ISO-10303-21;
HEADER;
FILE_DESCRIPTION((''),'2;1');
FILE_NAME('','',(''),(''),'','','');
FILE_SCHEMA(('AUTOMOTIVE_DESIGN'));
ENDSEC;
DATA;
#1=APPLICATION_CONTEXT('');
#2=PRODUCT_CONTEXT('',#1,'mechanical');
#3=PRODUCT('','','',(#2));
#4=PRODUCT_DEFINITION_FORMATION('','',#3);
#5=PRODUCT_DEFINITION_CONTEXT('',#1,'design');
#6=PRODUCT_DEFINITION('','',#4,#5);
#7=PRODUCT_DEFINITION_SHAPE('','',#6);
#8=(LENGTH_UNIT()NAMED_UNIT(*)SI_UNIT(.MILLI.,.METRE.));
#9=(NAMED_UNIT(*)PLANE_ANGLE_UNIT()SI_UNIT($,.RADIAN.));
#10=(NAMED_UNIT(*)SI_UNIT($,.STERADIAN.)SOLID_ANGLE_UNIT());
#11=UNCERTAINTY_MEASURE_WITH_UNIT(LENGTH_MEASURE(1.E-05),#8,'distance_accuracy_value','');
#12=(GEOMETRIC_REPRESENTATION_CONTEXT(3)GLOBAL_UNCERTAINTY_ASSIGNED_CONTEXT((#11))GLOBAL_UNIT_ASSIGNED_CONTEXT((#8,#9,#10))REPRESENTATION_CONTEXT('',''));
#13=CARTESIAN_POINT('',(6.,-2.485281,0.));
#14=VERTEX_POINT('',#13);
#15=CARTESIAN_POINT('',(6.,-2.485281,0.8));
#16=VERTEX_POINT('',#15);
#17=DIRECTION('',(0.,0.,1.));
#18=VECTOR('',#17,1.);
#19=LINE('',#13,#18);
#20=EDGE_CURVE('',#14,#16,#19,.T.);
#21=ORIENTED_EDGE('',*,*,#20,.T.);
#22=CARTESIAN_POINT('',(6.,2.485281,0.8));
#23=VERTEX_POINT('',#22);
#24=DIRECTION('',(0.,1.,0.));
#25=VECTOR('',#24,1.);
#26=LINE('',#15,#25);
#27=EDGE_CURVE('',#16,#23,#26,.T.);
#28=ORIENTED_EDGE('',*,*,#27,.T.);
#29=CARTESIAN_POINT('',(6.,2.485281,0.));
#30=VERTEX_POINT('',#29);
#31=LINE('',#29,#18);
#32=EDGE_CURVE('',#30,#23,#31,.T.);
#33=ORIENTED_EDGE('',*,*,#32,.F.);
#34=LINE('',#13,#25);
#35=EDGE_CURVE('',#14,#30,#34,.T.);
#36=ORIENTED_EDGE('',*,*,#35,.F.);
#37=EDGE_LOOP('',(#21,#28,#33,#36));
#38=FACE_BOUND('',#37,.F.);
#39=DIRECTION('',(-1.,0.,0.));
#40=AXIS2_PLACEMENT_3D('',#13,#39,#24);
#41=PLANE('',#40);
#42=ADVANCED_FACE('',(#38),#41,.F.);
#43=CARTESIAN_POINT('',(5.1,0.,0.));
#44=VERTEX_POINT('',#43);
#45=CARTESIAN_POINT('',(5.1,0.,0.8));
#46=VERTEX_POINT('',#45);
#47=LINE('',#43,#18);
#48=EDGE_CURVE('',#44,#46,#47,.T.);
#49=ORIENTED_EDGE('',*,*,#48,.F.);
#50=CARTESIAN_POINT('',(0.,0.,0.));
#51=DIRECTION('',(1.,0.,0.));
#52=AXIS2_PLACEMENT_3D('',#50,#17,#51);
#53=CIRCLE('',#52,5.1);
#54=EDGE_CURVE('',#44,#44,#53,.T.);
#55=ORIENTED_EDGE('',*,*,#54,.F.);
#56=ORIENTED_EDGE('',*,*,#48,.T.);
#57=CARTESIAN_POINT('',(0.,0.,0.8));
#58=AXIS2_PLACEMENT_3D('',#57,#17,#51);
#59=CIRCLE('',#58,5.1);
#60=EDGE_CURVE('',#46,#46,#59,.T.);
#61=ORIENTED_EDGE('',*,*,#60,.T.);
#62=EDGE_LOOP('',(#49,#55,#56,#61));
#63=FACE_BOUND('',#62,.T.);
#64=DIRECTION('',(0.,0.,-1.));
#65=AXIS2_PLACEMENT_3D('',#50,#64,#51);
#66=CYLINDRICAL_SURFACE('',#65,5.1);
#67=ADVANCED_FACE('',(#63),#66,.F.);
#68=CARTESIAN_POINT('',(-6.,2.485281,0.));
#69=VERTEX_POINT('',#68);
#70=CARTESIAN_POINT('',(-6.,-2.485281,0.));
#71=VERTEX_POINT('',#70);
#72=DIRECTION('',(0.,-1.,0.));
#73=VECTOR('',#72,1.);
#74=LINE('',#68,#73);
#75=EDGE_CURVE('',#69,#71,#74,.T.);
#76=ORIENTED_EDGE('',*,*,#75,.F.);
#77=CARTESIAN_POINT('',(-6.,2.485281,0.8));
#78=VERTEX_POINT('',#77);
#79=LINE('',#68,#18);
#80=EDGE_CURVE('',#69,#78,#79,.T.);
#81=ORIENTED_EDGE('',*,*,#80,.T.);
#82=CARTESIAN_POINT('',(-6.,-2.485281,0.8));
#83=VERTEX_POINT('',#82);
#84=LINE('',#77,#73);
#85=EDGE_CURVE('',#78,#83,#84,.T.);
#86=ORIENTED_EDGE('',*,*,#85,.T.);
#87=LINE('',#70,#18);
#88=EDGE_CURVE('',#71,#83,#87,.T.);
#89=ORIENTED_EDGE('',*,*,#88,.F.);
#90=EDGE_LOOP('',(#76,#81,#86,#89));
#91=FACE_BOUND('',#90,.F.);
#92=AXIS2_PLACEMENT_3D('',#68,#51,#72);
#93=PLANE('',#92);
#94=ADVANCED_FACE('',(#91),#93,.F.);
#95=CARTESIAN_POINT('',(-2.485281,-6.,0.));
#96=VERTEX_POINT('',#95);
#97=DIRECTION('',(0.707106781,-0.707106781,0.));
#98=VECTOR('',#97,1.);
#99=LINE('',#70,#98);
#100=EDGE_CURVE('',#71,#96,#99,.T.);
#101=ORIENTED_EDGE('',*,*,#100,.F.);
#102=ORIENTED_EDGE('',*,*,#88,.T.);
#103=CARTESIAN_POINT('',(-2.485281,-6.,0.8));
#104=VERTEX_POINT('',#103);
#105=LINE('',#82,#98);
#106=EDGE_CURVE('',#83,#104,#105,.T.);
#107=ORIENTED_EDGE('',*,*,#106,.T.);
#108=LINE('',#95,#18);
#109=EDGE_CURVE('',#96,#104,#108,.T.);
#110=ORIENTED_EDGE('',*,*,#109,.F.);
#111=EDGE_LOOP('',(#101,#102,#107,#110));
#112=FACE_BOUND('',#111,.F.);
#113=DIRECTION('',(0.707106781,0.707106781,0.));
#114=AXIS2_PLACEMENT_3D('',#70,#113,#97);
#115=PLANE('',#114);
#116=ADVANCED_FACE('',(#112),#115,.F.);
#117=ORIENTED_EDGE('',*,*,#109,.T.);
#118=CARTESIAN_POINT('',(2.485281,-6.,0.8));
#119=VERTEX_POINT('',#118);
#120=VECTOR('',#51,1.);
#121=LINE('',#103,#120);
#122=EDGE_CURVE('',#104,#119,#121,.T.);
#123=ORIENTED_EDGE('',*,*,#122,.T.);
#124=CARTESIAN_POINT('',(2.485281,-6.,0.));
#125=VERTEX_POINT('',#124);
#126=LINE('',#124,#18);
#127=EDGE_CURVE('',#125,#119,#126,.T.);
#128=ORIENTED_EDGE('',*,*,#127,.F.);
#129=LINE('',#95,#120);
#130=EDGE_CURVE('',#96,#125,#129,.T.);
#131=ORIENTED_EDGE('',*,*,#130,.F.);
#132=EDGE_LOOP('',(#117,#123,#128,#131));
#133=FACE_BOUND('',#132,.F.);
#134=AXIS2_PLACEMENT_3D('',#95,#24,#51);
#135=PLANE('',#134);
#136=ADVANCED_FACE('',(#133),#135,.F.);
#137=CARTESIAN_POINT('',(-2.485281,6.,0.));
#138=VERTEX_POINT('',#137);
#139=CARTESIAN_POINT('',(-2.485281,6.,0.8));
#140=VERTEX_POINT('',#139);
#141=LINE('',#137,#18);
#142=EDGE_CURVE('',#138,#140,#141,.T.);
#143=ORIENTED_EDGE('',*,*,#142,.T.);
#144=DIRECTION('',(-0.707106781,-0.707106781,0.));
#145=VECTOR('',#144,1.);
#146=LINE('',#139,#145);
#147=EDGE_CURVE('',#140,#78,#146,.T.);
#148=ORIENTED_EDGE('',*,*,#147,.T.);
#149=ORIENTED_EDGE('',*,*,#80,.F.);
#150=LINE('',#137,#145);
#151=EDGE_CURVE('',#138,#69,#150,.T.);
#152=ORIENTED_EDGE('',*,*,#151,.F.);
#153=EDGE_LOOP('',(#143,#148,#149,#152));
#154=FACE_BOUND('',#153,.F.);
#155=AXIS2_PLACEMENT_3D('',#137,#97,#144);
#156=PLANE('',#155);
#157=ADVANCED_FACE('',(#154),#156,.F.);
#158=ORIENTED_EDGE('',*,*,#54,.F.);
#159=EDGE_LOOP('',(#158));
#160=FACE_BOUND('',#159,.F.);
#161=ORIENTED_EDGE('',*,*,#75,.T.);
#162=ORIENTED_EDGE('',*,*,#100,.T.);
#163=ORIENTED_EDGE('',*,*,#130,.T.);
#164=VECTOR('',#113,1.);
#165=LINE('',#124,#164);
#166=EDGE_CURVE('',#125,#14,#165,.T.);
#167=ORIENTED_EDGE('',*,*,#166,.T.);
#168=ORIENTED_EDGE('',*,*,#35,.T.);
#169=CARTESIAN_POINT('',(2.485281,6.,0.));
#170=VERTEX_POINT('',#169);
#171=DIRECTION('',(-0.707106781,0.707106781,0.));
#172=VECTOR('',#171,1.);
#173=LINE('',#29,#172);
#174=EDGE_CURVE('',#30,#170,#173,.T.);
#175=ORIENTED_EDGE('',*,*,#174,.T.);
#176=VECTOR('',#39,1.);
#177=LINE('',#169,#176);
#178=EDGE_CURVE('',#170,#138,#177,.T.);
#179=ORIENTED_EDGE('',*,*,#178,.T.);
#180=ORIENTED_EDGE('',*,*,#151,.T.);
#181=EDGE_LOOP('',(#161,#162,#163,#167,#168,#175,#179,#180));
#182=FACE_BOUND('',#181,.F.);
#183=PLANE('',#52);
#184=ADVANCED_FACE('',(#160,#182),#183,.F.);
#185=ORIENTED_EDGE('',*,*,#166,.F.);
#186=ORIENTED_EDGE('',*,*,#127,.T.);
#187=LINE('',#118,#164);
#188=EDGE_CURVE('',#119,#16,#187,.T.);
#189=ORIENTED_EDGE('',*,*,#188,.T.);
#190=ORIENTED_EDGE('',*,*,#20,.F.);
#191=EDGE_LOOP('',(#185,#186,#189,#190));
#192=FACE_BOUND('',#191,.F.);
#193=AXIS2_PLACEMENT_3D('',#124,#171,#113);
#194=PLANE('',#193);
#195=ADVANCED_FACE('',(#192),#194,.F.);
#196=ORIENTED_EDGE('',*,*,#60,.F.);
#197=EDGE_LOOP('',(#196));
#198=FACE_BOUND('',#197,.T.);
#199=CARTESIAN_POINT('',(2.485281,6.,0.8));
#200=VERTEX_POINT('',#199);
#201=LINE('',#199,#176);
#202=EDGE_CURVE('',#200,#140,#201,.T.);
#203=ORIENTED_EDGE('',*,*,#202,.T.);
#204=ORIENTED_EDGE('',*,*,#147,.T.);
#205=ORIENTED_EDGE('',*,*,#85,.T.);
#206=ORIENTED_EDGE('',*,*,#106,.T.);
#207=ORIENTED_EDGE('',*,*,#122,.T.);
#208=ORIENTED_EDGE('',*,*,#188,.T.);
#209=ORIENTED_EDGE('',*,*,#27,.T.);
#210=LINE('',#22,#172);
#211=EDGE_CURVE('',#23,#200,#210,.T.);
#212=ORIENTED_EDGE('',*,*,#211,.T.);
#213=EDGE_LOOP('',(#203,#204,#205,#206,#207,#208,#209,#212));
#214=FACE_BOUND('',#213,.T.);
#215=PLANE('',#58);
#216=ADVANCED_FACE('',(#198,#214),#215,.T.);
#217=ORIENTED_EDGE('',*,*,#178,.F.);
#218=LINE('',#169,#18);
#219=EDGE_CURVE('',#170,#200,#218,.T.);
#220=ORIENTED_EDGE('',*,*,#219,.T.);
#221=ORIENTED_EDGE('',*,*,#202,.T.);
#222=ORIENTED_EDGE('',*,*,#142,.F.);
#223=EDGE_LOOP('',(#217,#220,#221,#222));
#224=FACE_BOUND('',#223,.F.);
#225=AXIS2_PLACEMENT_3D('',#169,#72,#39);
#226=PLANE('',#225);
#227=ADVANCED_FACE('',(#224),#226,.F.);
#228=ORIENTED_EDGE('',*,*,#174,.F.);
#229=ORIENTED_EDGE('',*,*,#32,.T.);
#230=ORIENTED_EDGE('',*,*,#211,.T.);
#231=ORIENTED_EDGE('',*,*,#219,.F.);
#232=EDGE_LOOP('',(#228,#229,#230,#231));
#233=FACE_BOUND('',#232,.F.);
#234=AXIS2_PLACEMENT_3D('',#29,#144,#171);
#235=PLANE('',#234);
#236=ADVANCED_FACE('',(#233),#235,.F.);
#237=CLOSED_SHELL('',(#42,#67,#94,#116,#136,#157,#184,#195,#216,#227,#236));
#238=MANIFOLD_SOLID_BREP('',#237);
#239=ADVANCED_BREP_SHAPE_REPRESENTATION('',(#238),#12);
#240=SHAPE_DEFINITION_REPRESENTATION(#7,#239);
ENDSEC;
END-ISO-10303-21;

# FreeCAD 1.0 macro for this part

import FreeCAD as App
import Part
import Sketcher


def add_polygon(sketch, points):
    """Adds a closed chain of lines whose ends are joined by coincident constraints."""
    first, n = sketch.GeometryCount, len(points)
    for a, b in zip(points, points[1:] + points[:1]):
        sketch.addGeometry(Part.LineSegment(App.Vector(*a, 0), App.Vector(*b, 0)), False)
    for i in range(n):
        sketch.addConstraint(Sketcher.Constraint("Coincident", first + i, 2, first + (i + 1) % n, 1))

doc = App.newDocument("Part")
body = doc.addObject("PartDesign::Body", "Body")

# Sketch on XY plane
sketch1 = body.newObject("Sketcher::SketchObject", "Sketch")
sketch1.AttachmentSupport = (doc.getObject("XY_Plane"), [""])
sketch1.MapMode = "FlatFace"
add_polygon(sketch1, [(2.5, 6), (-2.5, 6), (-6, 2.5), (-6, -2.5), (-2.5, -6), (2.5, -6), (6, -2.5), (6, 2.5)])  # lines 0-7
sketch1.addGeometry(Part.Circle(App.Vector(0, 0, 0), App.Vector(0, 0, 1), 5.1), False)  # 8
sketch1.addConstraint([
    Sketcher.Constraint("Horizontal", 0),
    Sketcher.Constraint("Vertical", 2),
    Sketcher.Constraint("Horizontal", 4),
    Sketcher.Constraint("Vertical", 6),
    Sketcher.Constraint("Coincident", 8, 3, -1, 1),
    Sketcher.Constraint("Symmetric", 0, 2, 4, 2, -1, 1),
    Sketcher.Constraint("Symmetric", 1, 2, 5, 2, -1, 1),
    Sketcher.Constraint("Perpendicular", 1, 3),
    Sketcher.Constraint("Perpendicular", 5, 7),
    Sketcher.Constraint("Horizontal", 2, 2, 5, 2),
    Sketcher.Constraint("Horizontal", 1, 2, 6, 2),
    Sketcher.Constraint("Vertical", 0, 2, 3, 2),
    Sketcher.Constraint("Equal", 4, 2),
    Sketcher.Constraint("Diameter", 8, 10.2),
    Sketcher.Constraint("DistanceY", -1, 1, 0, 2, 6.0),
    Sketcher.Constraint("DistanceX", 0, 2, 0, 1, 4.970562),
])
pad1 = body.newObject("PartDesign::Pad", "Pad")
pad1.Profile = sketch1
pad1.Length = 0.8

doc.recompute()
